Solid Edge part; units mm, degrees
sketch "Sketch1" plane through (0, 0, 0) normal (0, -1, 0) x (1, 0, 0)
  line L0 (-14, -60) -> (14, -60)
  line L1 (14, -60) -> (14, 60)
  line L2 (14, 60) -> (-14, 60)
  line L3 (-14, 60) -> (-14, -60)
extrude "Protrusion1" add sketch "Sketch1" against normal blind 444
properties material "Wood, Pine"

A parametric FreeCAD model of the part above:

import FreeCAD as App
import Part
import Sketcher

V = App.Vector


def add_polygon(sketch, points):
    """Adds a closed chain of lines whose ends are joined by coincident constraints."""
    first, n = sketch.GeometryCount, len(points)
    for a, b in zip(points, points[1:] + points[:1]):
        sketch.addGeometry(Part.LineSegment(App.Vector(*a, 0), App.Vector(*b, 0)), False)
    for i in range(n):
        sketch.addConstraint(Sketcher.Constraint("Coincident", first + i, 2, first + (i + 1) % n, 1))

doc = App.newDocument("Part")
body = doc.addObject("PartDesign::Body", "Body")

# Sketch on XZ plane
sketch1 = body.newObject("Sketcher::SketchObject", "Sketch")
sketch1.AttachmentSupport = (doc.getObject("XZ_Plane"), [""])
sketch1.MapMode = "FlatFace"
add_polygon(sketch1, [(-14, 60), (-14, -60), (14, -60), (14, 60)])  # lines 0-3
sketch1.addConstraint([
    Sketcher.Constraint("Vertical", 0),
    Sketcher.Constraint("Horizontal", 1),
    Sketcher.Constraint("Vertical", 2),
    Sketcher.Constraint("Horizontal", 3),
    Sketcher.Constraint("Symmetric", 0, 2, 2, 2, -1, 1),
    Sketcher.Constraint("DistanceX", 1, 1, 1, 2, 28.0),
    Sketcher.Constraint("DistanceY", 0, 2, 0, 1, 120.0),
])
pad1 = body.newObject("PartDesign::Pad", "Pad")
pad1.Profile = sketch1
pad1.Length = 444
pad1.Reversed = True

doc.recompute()
